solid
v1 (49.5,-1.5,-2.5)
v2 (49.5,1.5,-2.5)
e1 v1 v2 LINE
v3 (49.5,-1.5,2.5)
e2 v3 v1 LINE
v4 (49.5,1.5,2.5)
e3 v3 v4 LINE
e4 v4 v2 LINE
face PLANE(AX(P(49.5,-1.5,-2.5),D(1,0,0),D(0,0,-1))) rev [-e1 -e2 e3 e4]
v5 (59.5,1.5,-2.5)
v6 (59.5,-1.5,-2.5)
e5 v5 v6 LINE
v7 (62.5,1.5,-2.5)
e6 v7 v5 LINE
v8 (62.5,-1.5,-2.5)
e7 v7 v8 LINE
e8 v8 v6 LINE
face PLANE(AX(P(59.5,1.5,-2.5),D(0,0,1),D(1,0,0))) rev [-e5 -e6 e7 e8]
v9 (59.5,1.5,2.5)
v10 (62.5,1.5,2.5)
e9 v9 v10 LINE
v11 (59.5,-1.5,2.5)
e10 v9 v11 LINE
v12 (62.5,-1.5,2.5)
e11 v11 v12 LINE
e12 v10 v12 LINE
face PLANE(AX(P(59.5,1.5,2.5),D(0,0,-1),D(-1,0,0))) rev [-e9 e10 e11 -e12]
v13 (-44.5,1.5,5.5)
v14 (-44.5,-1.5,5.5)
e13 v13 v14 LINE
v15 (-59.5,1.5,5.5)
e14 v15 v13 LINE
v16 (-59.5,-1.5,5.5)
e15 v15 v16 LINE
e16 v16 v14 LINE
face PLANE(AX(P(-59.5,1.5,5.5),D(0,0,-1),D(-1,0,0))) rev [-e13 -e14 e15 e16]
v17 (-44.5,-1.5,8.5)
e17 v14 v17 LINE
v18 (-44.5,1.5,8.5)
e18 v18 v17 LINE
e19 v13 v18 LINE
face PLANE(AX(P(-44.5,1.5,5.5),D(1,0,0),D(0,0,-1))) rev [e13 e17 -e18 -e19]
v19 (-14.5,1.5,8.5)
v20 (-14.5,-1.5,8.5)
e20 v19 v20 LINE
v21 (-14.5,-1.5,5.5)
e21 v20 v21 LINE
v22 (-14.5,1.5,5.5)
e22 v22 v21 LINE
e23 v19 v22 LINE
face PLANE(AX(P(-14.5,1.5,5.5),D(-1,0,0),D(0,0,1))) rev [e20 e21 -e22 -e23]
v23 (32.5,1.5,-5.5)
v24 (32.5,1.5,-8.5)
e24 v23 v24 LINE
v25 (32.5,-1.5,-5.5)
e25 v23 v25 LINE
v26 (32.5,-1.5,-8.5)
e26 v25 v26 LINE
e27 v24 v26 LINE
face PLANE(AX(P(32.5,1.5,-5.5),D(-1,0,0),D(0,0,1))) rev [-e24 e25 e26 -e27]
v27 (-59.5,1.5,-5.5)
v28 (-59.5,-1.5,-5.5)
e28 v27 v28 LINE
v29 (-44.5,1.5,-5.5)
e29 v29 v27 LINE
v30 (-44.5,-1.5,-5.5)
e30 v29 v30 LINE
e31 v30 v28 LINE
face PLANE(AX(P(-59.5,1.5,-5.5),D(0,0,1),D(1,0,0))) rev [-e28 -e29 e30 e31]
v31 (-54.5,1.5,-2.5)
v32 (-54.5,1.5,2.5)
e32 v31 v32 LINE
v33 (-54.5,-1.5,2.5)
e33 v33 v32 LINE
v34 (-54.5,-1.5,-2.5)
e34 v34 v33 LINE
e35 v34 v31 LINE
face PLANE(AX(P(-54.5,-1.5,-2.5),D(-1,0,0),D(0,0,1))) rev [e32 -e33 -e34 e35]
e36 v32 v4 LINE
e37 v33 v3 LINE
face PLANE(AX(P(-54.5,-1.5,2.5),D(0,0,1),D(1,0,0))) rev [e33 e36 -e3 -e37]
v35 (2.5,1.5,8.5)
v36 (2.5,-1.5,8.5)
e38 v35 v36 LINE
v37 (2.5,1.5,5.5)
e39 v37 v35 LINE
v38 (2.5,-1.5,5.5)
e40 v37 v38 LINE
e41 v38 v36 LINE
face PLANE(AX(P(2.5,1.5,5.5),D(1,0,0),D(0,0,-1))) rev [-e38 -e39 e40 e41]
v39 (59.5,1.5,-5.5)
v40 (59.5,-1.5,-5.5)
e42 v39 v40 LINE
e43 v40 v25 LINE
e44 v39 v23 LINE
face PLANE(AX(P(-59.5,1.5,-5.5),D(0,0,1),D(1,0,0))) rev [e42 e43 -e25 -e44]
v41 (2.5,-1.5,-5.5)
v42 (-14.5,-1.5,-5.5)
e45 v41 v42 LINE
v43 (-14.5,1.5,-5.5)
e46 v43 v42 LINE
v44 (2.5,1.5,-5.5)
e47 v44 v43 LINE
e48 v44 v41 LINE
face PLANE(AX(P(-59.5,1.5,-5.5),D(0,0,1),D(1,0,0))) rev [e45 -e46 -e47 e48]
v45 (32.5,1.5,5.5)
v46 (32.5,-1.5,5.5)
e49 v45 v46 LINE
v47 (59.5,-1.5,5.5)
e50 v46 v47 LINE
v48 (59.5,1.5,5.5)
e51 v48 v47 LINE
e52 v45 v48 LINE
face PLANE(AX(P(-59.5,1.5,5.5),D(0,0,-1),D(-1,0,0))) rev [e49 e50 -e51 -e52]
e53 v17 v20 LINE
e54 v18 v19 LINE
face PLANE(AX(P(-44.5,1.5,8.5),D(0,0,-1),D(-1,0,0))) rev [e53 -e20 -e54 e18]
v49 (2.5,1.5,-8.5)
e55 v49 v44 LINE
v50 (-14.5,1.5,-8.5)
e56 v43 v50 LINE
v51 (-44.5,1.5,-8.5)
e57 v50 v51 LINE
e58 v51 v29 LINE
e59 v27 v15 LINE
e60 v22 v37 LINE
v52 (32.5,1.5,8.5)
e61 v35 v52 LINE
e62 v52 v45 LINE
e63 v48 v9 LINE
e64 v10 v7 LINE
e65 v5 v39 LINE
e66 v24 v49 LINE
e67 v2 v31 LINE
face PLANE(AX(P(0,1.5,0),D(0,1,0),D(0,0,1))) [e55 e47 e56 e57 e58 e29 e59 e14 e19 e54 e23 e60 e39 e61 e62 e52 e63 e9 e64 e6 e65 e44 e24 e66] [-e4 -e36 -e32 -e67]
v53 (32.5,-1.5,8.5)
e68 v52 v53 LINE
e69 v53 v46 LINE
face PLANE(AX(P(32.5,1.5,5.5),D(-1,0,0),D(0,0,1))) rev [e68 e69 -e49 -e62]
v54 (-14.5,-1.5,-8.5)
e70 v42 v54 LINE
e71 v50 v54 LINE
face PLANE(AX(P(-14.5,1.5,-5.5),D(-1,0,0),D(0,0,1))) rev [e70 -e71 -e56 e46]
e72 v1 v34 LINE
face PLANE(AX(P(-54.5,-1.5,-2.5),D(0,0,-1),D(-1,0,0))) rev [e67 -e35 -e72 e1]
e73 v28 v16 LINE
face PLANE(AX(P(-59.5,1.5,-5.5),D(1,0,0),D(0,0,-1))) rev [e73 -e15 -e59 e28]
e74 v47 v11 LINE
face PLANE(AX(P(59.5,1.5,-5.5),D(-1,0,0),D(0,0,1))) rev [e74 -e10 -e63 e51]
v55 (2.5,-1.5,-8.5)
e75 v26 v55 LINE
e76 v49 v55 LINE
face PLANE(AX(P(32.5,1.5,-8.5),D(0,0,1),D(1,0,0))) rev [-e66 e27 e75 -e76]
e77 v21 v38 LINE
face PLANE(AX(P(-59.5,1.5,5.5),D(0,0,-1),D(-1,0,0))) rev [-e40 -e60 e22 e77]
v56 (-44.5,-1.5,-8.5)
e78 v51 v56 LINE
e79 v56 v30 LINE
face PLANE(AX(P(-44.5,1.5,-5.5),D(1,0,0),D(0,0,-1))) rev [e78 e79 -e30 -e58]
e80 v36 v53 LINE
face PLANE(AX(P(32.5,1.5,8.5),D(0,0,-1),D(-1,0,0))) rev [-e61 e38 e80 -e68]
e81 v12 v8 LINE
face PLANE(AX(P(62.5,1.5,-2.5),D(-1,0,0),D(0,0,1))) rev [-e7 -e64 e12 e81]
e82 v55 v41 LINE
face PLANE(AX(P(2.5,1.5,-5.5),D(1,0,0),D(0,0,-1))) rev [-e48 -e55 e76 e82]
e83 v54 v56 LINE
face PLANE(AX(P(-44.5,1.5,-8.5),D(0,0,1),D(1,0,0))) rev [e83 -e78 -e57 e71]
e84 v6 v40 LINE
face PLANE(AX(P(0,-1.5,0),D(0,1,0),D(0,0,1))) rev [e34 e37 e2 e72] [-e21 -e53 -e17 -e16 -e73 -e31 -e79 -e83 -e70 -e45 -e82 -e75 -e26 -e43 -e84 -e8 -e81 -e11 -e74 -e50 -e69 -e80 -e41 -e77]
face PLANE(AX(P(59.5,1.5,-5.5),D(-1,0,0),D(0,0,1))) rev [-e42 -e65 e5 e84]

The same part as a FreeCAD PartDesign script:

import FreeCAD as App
import Part
import Sketcher

V = App.Vector

doc = App.newDocument("Part")
body = doc.addObject("PartDesign::Body", "Body")

sketch1 = body.newObject("Sketcher::SketchObject", "Sketch")
sketch1.AttachmentSupport = (doc.getObject("XZ_Plane"), [""])
sketch1.MapMode = "FlatFace"
sketch1.addGeometry([
    Part.LineSegment(V(-59.5, -5.5, 0), V(-59.5, 5.5, 0)),
    Part.LineSegment(V(-59.5, 5.5, 0), V(59.5, 5.5, 0)),
    Part.LineSegment(V(59.5, 5.5, 0), V(59.5, -5.5, 0)),
    Part.LineSegment(V(59.5, -5.5, 0), V(-59.5, -5.5, 0)),
], False)
sketch1.addConstraint([
    Sketcher.Constraint("Coincident", 0, 2, 1, 1),
    Sketcher.Constraint("Coincident", 1, 2, 2, 1),
    Sketcher.Constraint("Coincident", 2, 2, 3, 1),
    Sketcher.Constraint("Coincident", 3, 2, 0, 1),
    Sketcher.Constraint("Vertical", 0),
    Sketcher.Constraint("Horizontal", 1),
    Sketcher.Constraint("Vertical", 2),
    Sketcher.Constraint("Horizontal", 3),
    Sketcher.Constraint("Symmetric", 0, 2, 2, 2, -1, 1),
    Sketcher.Constraint("DistanceX", 1, 1, 1, 2, 119.0),
    Sketcher.Constraint("DistanceY", 0, 1, 0, 2, 11.0),
])
pad1 = body.newObject("PartDesign::Pad", "Pad")
pad1.Profile = sketch1
pad1.Length = 3
pad1.Midplane = True

sketch2 = body.newObject("Sketcher::SketchObject", "Sketch001")
sketch2.AttachmentSupport = (doc.getObject("XZ_Plane"), [""])
sketch2.MapMode = "FlatFace"
sketch2.addGeometry([
    Part.LineSegment(V(-44.5, 5.5, 0), V(-44.5, 8.5, 0)),
    Part.LineSegment(V(-44.5, 8.5, 0), V(-14.5, 8.5, 0)),
    Part.LineSegment(V(-14.5, 8.5, 0), V(-14.5, 5.5, 0)),
    Part.LineSegment(V(-14.5, 5.5, 0), V(-44.5, 5.5, 0)),
    Part.LineSegment(V(-44.5, -8.5, 0), V(-44.5, -5.5, 0)),
    Part.LineSegment(V(-44.5, -5.5, 0), V(-14.5, -5.5, 0)),
    Part.LineSegment(V(-14.5, -5.5, 0), V(-14.5, -8.5, 0)),
    Part.LineSegment(V(-14.5, -8.5, 0), V(-44.5, -8.5, 0)),
    Part.LineSegment(V(2.5, 5.5, 0), V(2.5, 8.5, 0)),
    Part.LineSegment(V(2.5, 8.5, 0), V(32.5, 8.5, 0)),
    Part.LineSegment(V(32.5, 8.5, 0), V(32.5, 5.5, 0)),
    Part.LineSegment(V(32.5, 5.5, 0), V(2.5, 5.5, 0)),
    Part.LineSegment(V(2.5, -8.5, 0), V(2.5, -5.5, 0)),
    Part.LineSegment(V(2.5, -5.5, 0), V(32.5, -5.5, 0)),
    Part.LineSegment(V(32.5, -5.5, 0), V(32.5, -8.5, 0)),
    Part.LineSegment(V(32.5, -8.5, 0), V(2.5, -8.5, 0)),
], False)
sketch2.addConstraint([
    Sketcher.Constraint("Coincident", 0, 2, 1, 1),
    Sketcher.Constraint("Coincident", 1, 2, 2, 1),
    Sketcher.Constraint("Coincident", 2, 2, 3, 1),
    Sketcher.Constraint("Coincident", 3, 2, 0, 1),
    Sketcher.Constraint("Coincident", 4, 2, 5, 1),
    Sketcher.Constraint("Coincident", 5, 2, 6, 1),
    Sketcher.Constraint("Coincident", 6, 2, 7, 1),
    Sketcher.Constraint("Coincident", 7, 2, 4, 1),
    Sketcher.Constraint("Coincident", 8, 2, 9, 1),
    Sketcher.Constraint("Coincident", 9, 2, 10, 1),
    Sketcher.Constraint("Coincident", 10, 2, 11, 1),
    Sketcher.Constraint("Coincident", 11, 2, 8, 1),
    Sketcher.Constraint("Coincident", 12, 2, 13, 1),
    Sketcher.Constraint("Coincident", 13, 2, 14, 1),
    Sketcher.Constraint("Coincident", 14, 2, 15, 1),
    Sketcher.Constraint("Coincident", 15, 2, 12, 1),
    Sketcher.Constraint("Vertical", 0),
    Sketcher.Constraint("Horizontal", 1),
    Sketcher.Constraint("Vertical", 2),
    Sketcher.Constraint("Horizontal", 3),
    Sketcher.Constraint("Vertical", 4),
    Sketcher.Constraint("Horizontal", 5),
    Sketcher.Constraint("Vertical", 6),
    Sketcher.Constraint("Horizontal", 7),
    Sketcher.Constraint("Vertical", 8),
    Sketcher.Constraint("Horizontal", 9),
    Sketcher.Constraint("Vertical", 10),
    Sketcher.Constraint("Horizontal", 11),
    Sketcher.Constraint("Vertical", 12),
    Sketcher.Constraint("Horizontal", 13),
    Sketcher.Constraint("Vertical", 14),
    Sketcher.Constraint("Horizontal", 15),
    Sketcher.Constraint("Symmetric", 3, 2, 4, 2, -1),
    Sketcher.Constraint("Symmetric", 1, 2, 6, 2, -1),
    Sketcher.Constraint("Symmetric", 11, 2, 12, 2, -1),
    Sketcher.Constraint("Symmetric", 9, 2, 14, 2, -1),
    Sketcher.Constraint("Horizontal", 1, 2, 8, 2),
    Sketcher.Constraint("Horizontal", 3, 2, 10, 2),
    Sketcher.Constraint("Equal", 7, 9),
    Sketcher.Constraint("DistanceX", 1, 1, 1, 2, 30.0),
    Sketcher.Constraint("DistanceY", 0, 1, 0, 2, 3.0),
    Sketcher.Constraint("DistanceY", 4, 2, 3, 2, 11.0),
    Sketcher.Constraint("DistanceX", 1, 2, 8, 2, 17.0),
    Sketcher.Constraint("DistanceX", 0, 2, -1, 1, 44.5),
])
pad2 = body.newObject("PartDesign::Pad", "Pad001")
pad2.Profile = sketch2
pad2.Length = 3
pad2.Midplane = True

sketch3 = body.newObject("Sketcher::SketchObject", "Sketch002")
sketch3.AttachmentSupport = (doc.getObject("XZ_Plane"), [""])
sketch3.MapMode = "FlatFace"
sketch3.addGeometry([
    Part.LineSegment(V(-54.5, -2.5, 0), V(-54.5, 2.5, 0)),
    Part.LineSegment(V(-54.5, 2.5, 0), V(49.5, 2.5, 0)),
    Part.LineSegment(V(49.5, 2.5, 0), V(49.5, -2.5, 0)),
    Part.LineSegment(V(49.5, -2.5, 0), V(-54.5, -2.5, 0)),
], False)
sketch3.addConstraint([
    Sketcher.Constraint("Coincident", 0, 2, 1, 1),
    Sketcher.Constraint("Coincident", 1, 2, 2, 1),
    Sketcher.Constraint("Coincident", 2, 2, 3, 1),
    Sketcher.Constraint("Coincident", 3, 2, 0, 1),
    Sketcher.Constraint("Vertical", 0),
    Sketcher.Constraint("Horizontal", 1),
    Sketcher.Constraint("Vertical", 2),
    Sketcher.Constraint("Horizontal", 3),
    Sketcher.Constraint("DistanceX", 1, 1, 1, 2, 104.0),
    Sketcher.Constraint("DistanceY", 0, 1, 0, 2, 5.0),
    Sketcher.Constraint("DistanceX", 0, 2, -1, 1, 54.5),
    Sketcher.Constraint("DistanceY", -1, 1, 0, 2, 2.5),
])
pocket1 = body.newObject("PartDesign::Pocket", "Pocket")
pocket1.Profile = sketch3
pocket1.Type = "ThroughAll"
pocket1.Midplane = True

sketch4 = body.newObject("Sketcher::SketchObject", "Sketch003")
sketch4.AttachmentSupport = (doc.getObject("XZ_Plane"), [""])
sketch4.MapMode = "FlatFace"
sketch4.addGeometry([
    Part.LineSegment(V(59.5, -2.5, 0), V(59.5, 2.5, 0)),
    Part.LineSegment(V(59.5, 2.5, 0), V(62.5, 2.5, 0)),
    Part.LineSegment(V(62.5, 2.5, 0), V(62.5, -2.5, 0)),
    Part.LineSegment(V(62.5, -2.5, 0), V(59.5, -2.5, 0)),
], False)
sketch4.addConstraint([
    Sketcher.Constraint("Coincident", 0, 2, 1, 1),
    Sketcher.Constraint("Coincident", 1, 2, 2, 1),
    Sketcher.Constraint("Coincident", 2, 2, 3, 1),
    Sketcher.Constraint("Coincident", 3, 2, 0, 1),
    Sketcher.Constraint("Vertical", 0),
    Sketcher.Constraint("Horizontal", 1),
    Sketcher.Constraint("Vertical", 2),
    Sketcher.Constraint("Horizontal", 3),
    Sketcher.Constraint("DistanceX", 1, 1, 1, 2, 3.0),
    Sketcher.Constraint("DistanceY", 0, 1, 0, 2, 5.0),
    Sketcher.Constraint("DistanceX", -1, 1, 0, 2, 59.5),
    Sketcher.Constraint("DistanceY", -1, 1, 0, 2, 2.5),
])
pad3 = body.newObject("PartDesign::Pad", "Pad002")
pad3.Profile = sketch4
pad3.Length = 3
pad3.Midplane = True

doc.recompute()
